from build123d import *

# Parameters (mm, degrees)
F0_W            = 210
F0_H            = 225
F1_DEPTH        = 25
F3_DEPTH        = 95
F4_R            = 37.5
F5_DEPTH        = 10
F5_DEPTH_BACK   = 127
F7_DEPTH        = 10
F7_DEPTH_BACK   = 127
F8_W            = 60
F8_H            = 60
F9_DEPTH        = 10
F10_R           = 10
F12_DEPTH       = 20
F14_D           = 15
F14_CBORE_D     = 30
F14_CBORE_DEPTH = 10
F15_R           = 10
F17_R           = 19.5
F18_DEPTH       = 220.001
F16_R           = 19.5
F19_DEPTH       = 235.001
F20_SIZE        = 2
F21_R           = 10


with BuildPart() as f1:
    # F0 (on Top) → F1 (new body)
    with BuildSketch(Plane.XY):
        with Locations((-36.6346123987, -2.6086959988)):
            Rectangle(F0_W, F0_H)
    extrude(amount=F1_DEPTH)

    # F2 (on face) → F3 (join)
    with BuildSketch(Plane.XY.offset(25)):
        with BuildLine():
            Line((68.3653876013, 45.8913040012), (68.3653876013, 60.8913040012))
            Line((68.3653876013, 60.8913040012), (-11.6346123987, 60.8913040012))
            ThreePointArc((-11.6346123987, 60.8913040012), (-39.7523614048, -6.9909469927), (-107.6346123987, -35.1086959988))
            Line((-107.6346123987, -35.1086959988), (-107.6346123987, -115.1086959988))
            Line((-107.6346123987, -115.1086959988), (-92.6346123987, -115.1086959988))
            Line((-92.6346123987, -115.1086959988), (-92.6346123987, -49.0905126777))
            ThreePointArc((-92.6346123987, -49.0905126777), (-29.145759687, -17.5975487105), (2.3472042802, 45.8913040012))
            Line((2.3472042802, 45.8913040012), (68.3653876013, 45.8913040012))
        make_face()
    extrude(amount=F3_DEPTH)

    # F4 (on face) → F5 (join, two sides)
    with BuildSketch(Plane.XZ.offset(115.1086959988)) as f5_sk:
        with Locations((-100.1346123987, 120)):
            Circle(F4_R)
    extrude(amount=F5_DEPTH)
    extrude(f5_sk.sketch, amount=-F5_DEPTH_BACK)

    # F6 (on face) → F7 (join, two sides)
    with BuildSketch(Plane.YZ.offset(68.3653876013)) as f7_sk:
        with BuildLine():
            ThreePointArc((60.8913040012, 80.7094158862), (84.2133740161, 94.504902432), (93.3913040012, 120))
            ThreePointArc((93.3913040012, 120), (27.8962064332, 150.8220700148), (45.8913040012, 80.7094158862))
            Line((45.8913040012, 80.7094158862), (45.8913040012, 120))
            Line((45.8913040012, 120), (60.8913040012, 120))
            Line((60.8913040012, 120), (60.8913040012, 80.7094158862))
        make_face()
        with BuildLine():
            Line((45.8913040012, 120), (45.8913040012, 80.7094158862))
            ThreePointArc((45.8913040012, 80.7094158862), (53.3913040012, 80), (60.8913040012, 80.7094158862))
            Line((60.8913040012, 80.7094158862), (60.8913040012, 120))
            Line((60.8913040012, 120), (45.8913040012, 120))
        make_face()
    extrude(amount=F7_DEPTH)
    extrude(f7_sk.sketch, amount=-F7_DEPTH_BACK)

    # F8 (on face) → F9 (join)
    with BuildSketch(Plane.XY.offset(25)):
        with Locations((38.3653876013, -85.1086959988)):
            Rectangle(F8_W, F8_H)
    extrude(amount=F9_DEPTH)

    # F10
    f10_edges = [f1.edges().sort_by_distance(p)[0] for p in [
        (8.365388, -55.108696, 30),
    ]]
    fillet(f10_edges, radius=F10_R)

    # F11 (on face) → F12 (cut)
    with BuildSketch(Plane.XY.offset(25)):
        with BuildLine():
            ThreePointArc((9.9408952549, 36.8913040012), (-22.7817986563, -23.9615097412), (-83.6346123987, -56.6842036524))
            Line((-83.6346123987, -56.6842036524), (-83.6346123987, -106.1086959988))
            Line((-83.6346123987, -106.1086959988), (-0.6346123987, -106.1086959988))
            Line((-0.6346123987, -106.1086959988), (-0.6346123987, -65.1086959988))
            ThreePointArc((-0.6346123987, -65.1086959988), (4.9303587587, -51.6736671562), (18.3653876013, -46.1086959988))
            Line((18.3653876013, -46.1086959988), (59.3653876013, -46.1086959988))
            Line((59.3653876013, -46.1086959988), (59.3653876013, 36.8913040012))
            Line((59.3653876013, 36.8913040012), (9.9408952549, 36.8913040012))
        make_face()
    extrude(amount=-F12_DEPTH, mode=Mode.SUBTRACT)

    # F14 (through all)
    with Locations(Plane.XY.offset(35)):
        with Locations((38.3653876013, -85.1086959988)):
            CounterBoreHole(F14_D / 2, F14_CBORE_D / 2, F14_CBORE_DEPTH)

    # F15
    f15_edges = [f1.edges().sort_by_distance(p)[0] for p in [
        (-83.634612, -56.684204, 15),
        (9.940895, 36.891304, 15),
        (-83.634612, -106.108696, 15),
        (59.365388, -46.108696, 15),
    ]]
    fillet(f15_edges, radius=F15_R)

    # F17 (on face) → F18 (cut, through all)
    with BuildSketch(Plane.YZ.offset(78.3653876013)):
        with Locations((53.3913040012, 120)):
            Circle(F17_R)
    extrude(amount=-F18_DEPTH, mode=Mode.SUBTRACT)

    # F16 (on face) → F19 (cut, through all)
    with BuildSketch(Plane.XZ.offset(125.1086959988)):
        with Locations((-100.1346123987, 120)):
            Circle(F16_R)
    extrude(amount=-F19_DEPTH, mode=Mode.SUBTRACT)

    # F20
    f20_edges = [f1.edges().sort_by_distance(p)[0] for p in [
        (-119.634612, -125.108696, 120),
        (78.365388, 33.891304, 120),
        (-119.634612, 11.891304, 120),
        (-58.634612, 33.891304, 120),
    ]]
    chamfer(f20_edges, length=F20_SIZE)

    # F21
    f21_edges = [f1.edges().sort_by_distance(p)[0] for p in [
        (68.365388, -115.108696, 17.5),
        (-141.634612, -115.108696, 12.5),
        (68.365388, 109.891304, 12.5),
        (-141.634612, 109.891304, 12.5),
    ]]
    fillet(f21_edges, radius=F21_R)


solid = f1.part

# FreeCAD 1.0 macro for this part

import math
import FreeCAD as App
import Part
import Sketcher

V = App.Vector


def edges_at(feature, points):
    """Names of the edges that pass closest to the given points."""
    edges = feature.Shape.Edges
    near = lambda p: min(range(len(edges)), key=lambda i: edges[i].distToShape(Part.Vertex(*p))[0])
    return sorted({f"Edge{near(p) + 1}" for p in points})


def add_polygon(sketch, points):
    """Adds a closed chain of lines whose ends are joined by coincident constraints."""
    first, n = sketch.GeometryCount, len(points)
    for a, b in zip(points, points[1:] + points[:1]):
        sketch.addGeometry(Part.LineSegment(App.Vector(*a, 0), App.Vector(*b, 0)), False)
    for i in range(n):
        sketch.addConstraint(Sketcher.Constraint("Coincident", first + i, 2, first + (i + 1) % n, 1))

doc = App.newDocument("Part")
body = doc.addObject("PartDesign::Body", "Body")

sketch1 = doc.addObject("Sketcher::SketchObject", "Sketch")
body.addObject(sketch1)
sketch1.AttachmentSupport = (doc.XY_Plane, [""])
sketch1.MapMode = "FlatFace"
add_polygon(sketch1, [(-141.634612, 109.891304), (-141.634612, -115.108696), (68.365388, -115.108696), (68.365388, 109.891304)])
sketch1.addConstraint([
    Sketcher.Constraint("Vertical", 0),
    Sketcher.Constraint("Horizontal", 1),
    Sketcher.Constraint("Vertical", 2),
    Sketcher.Constraint("Horizontal", 3),
    Sketcher.Constraint("DistanceX", 1, 1, 1, 2, 210.0),
    Sketcher.Constraint("DistanceY", 0, 2, 0, 1, 225.0),
    Sketcher.Constraint("DistanceX", 0, 2, -1, 1, 141.634612),
    Sketcher.Constraint("DistanceY", 0, 2, -1, 1, 115.108696),
])
pad1 = doc.addObject("PartDesign::Pad", "Pad")
body.addObject(pad1)
pad1.Profile = sketch1
pad1.Length = 25

sketch2 = doc.addObject("Sketcher::SketchObject", "Sketch001")
body.addObject(sketch2)
sketch2.AttachmentSupport = (doc.XY_Plane, [""])
sketch2.MapMode = "FlatFace"
sketch2.AttachmentOffset = App.Placement(V(0, 0, 25), App.Rotation())
sketch2.addGeometry([
    Part.LineSegment(V(68.365388, 45.891304, 0), V(68.365388, 60.891304, 0)),
    Part.LineSegment(V(68.365388, 60.891304, 0), V(-11.634612, 60.891304, 0)),
    Part.ArcOfCircle(Part.Circle(V(-107.634612, 60.891304, 0), V(0, 0, 1), 96), math.radians(-90), math.radians(0)),
    Part.LineSegment(V(-107.634612, -35.108696, 0), V(-107.634612, -115.108696, 0)),
    Part.LineSegment(V(-107.634612, -115.108696, 0), V(-92.634612, -115.108696, 0)),
    Part.LineSegment(V(-92.634612, -115.108696, 0), V(-92.634612, -49.090513, 0)),
    Part.ArcOfCircle(Part.Circle(V(-107.634612, 60.891304, 0), V(0, 0, 1), 111), math.radians(-82.233566), math.radians(-7.766434)),
    Part.LineSegment(V(2.347204, 45.891304, 0), V(68.365388, 45.891304, 0)),
], False)
sketch2.addConstraint([
    Sketcher.Constraint("Coincident", 0, 2, 1, 1),
    Sketcher.Constraint("Coincident", 1, 2, 2, 2),
    Sketcher.Constraint("Coincident", 2, 1, 3, 1),
    Sketcher.Constraint("Coincident", 3, 2, 4, 1),
    Sketcher.Constraint("Coincident", 4, 2, 5, 1),
    Sketcher.Constraint("Coincident", 5, 2, 6, 1),
    Sketcher.Constraint("Coincident", 6, 2, 7, 1),
    Sketcher.Constraint("Coincident", 7, 2, 0, 1),
    Sketcher.Constraint("Vertical", 0),
    Sketcher.Constraint("Horizontal", 1),
    Sketcher.Constraint("Vertical", 3),
    Sketcher.Constraint("Horizontal", 4),
    Sketcher.Constraint("Vertical", 5),
    Sketcher.Constraint("Horizontal", 7),
    Sketcher.Constraint("Coincident", 6, 3, 2, 3),
    Sketcher.Constraint("Horizontal", 6, 3, 0, 2),
    Sketcher.Constraint("Vertical", 6, 3, 2, 1),
    Sketcher.Constraint("Equal", 4, 0),
    Sketcher.Constraint("Equal", 1, 3),
    Sketcher.Constraint("Radius", 2, 96.0),
    Sketcher.Constraint("Radius", 6, 111.0),
    Sketcher.Constraint("DistanceX", 1, 2, 1, 1, 80.0),
    Sketcher.Constraint("DistanceX", 4, 1, 4, 2, 15.0),
    Sketcher.Constraint("DistanceX", 2, 3, -1, 1, 107.634612),
    Sketcher.Constraint("DistanceY", -1, 1, 2, 3, 60.891304),
])
pad2 = doc.addObject("PartDesign::Pad", "Pad001")
body.addObject(pad2)
pad2.Profile = sketch2
pad2.Length = 95

sketch3 = doc.addObject("Sketcher::SketchObject", "Sketch002")
body.addObject(sketch3)
sketch3.AttachmentSupport = (doc.XZ_Plane, [""])
sketch3.MapMode = "FlatFace"
sketch3.AttachmentOffset = App.Placement(V(0, 0, 115.108696), App.Rotation())
sketch3.addGeometry(Part.Circle(V(-100.134612, 120, 0), V(0, 0, 1), 37.5), False)
sketch3.addConstraint([
    Sketcher.Constraint("Diameter", 0, 75.0),
    Sketcher.Constraint("DistanceY", -1, 1, 0, 3, 120.0),
    Sketcher.Constraint("DistanceX", 0, 3, -1, 1, 100.134612),
])
pad3 = doc.addObject("PartDesign::Pad", "Pad002")
body.addObject(pad3)
pad3.Profile = sketch3
pad3.Type = "TwoLengths"
pad3.Length = 10
pad3.Length2 = 127

sketch4 = doc.addObject("Sketcher::SketchObject", "Sketch003")
body.addObject(sketch4)
sketch4.AttachmentSupport = (doc.YZ_Plane, [""])
sketch4.MapMode = "FlatFace"
sketch4.AttachmentOffset = App.Placement(V(0, 0, 68.365388), App.Rotation())
sketch4.addGeometry([
    Part.ArcOfCircle(Part.Circle(V(53.391304, 120, 0), V(0, 0, 1), 40), math.radians(-79.193077), math.radians(0)),
    Part.ArcOfCircle(Part.Circle(V(53.391304, 120, 0), V(0, 0, 1), 40), math.radians(0), math.radians(259.193077)),
    Part.ArcOfCircle(Part.Circle(V(53.391304, 120, 0), V(0, 0, 1), 40), math.radians(-100.806923), math.radians(-79.193077)),
], False)
sketch4.addConstraint([
    Sketcher.Constraint("Tangent", 0, 2, 1, 1),
    Sketcher.Constraint("Tangent", 1, 2, 2, 1),
    Sketcher.Constraint("Tangent", 2, 2, 0, 1),
    Sketcher.Constraint("Horizontal", 2, 3, 0, 2),
    Sketcher.Constraint("Horizontal", 1, 2, 2, 2),
    Sketcher.Constraint("Radius", 0, 40.0),
    Sketcher.Constraint("DistanceY", -1, 1, 0, 3, 120.0),
    Sketcher.Constraint("DistanceX", 1, 2, 2, 2, 15.0),
    Sketcher.Constraint("DistanceX", -1, 1, 0, 3, 53.391304),
])
pad4 = doc.addObject("PartDesign::Pad", "Pad003")
body.addObject(pad4)
pad4.Profile = sketch4
pad4.Type = "TwoLengths"
pad4.Length = 10
pad4.Length2 = 127

sketch5 = doc.addObject("Sketcher::SketchObject", "Sketch004")
body.addObject(sketch5)
sketch5.AttachmentSupport = (doc.XY_Plane, [""])
sketch5.MapMode = "FlatFace"
sketch5.AttachmentOffset = App.Placement(V(0, 0, 25), App.Rotation())
add_polygon(sketch5, [(8.365388, -55.108696), (8.365388, -115.108696), (68.365388, -115.108696), (68.365388, -55.108696)])
sketch5.addConstraint([
    Sketcher.Constraint("Vertical", 0),
    Sketcher.Constraint("Horizontal", 1),
    Sketcher.Constraint("Vertical", 2),
    Sketcher.Constraint("Horizontal", 3),
    Sketcher.Constraint("Equal", 3, 0),
    Sketcher.Constraint("DistanceX", 1, 1, 1, 2, 60.0),
    Sketcher.Constraint("DistanceX", -1, 1, 0, 2, 8.365388),
    Sketcher.Constraint("DistanceY", 0, 2, -1, 1, 115.108696),
])
pad5 = doc.addObject("PartDesign::Pad", "Pad004")
body.addObject(pad5)
pad5.Profile = sketch5
pad5.Length = 10
doc.recompute()

fillet = doc.addObject("PartDesign::Fillet", "Fillet")
body.addObject(fillet)
fillet.Base = (pad5, edges_at(pad5, [(8.365, -55.109, 30)]))
fillet.Radius = 10

sketch6 = doc.addObject("Sketcher::SketchObject", "Sketch005")
body.addObject(sketch6)
sketch6.AttachmentSupport = (doc.XY_Plane, [""])
sketch6.MapMode = "FlatFace"
sketch6.AttachmentOffset = App.Placement(V(0, 0, 25), App.Rotation())
sketch6.addGeometry([
    Part.ArcOfCircle(Part.Circle(V(-107.634612, 60.891304, 0), V(0, 0, 1), 120), math.radians(-78.463041), math.radians(-11.536959)),
    Part.LineSegment(V(-83.634612, -56.684204, 0), V(-83.634612, -106.108696, 0)),
    Part.LineSegment(V(-83.634612, -106.108696, 0), V(-0.634612, -106.108696, 0)),
    Part.LineSegment(V(-0.634612, -106.108696, 0), V(-0.634612, -65.108696, 0)),
    Part.ArcOfCircle(Part.Circle(V(18.365388, -65.108696, 0), V(0, 0, 1), 19), math.radians(90), math.radians(180)),
    Part.LineSegment(V(18.365388, -46.108696, 0), V(59.365388, -46.108696, 0)),
    Part.LineSegment(V(59.365388, -46.108696, 0), V(59.365388, 36.891304, 0)),
    Part.LineSegment(V(59.365388, 36.891304, 0), V(9.940895, 36.891304, 0)),
], False)
sketch6.addConstraint([
    Sketcher.Constraint("Coincident", 0, 1, 1, 1),
    Sketcher.Constraint("Coincident", 1, 2, 2, 1),
    Sketcher.Constraint("Coincident", 2, 2, 3, 1),
    Sketcher.Constraint("Tangent", 3, 2, 4, 2),
    Sketcher.Constraint("Tangent", 4, 1, 5, 1),
    Sketcher.Constraint("Coincident", 5, 2, 6, 1),
    Sketcher.Constraint("Coincident", 6, 2, 7, 1),
    Sketcher.Constraint("Coincident", 7, 2, 0, 2),
    Sketcher.Constraint("Vertical", 1),
    Sketcher.Constraint("Horizontal", 2),
    Sketcher.Constraint("Vertical", 3),
    Sketcher.Constraint("Horizontal", 5),
    Sketcher.Constraint("Vertical", 6),
    Sketcher.Constraint("Horizontal", 7),
    Sketcher.Constraint("Equal", 7, 1),
    Sketcher.Constraint("Equal", 5, 3),
    Sketcher.Constraint("Equal", 2, 6),
    Sketcher.Constraint("Radius", 0, 120.0),
    Sketcher.Constraint("Radius", 4, 19.0),
    Sketcher.Constraint("DistanceX", 2, 1, 2, 2, 83.0),
    Sketcher.Constraint("DistanceX", 5, 1, 5, 2, 41.0),
    Sketcher.Constraint("DistanceX", 0, 3, 4, 3, 126.0),
    Sketcher.Constraint("DistanceX", 0, 3, -1, 1, 107.634612),
    Sketcher.Constraint("DistanceY", -1, 1, 0, 3, 60.891304),
])
pocket1 = doc.addObject("PartDesign::Pocket", "Pocket")
body.addObject(pocket1)
pocket1.Profile = sketch6
pocket1.Length = 20

sketch7 = doc.addObject("Sketcher::SketchObject", "Sketch006")
body.addObject(sketch7)
sketch7.AttachmentSupport = (doc.XY_Plane, [""])
sketch7.MapMode = "FlatFace"
sketch7.AttachmentOffset = App.Placement(V(0, 0, 35), App.Rotation())
sketch7.addGeometry(Part.Circle(V(38.365388, -85.108696, 0), V(0, 0, 1), 7.5), False)
sketch7.addConstraint([
    Sketcher.Constraint("Diameter", 0, 15.0),
    Sketcher.Constraint("DistanceX", -1, 1, 0, 3, 38.365388),
    Sketcher.Constraint("DistanceY", 0, 3, -1, 1, 85.108696),
])
doc.recompute()
hole = doc.addObject("PartDesign::Hole", "Hole")
body.addObject(hole)
hole.Profile = sketch7
hole.ThreadType = "None"
hole.Diameter = 15
hole.DepthType = "ThroughAll"
hole.HoleCutType = "Counterbore"
hole.HoleCutDiameter = 30
hole.HoleCutDepth = 10
doc.recompute()

fillet2 = doc.addObject("PartDesign::Fillet", "Fillet001")
body.addObject(fillet2)
fillet2.Base = (hole, edges_at(hole, [
    (-83.635, -56.684, 15),
    (9.941, 36.891, 15),
    (-83.635, -106.109, 15),
    (59.365, -46.109, 15),
]))
fillet2.Radius = 10

sketch8 = doc.addObject("Sketcher::SketchObject", "Sketch007")
body.addObject(sketch8)
sketch8.AttachmentSupport = (doc.YZ_Plane, [""])
sketch8.MapMode = "FlatFace"
sketch8.AttachmentOffset = App.Placement(V(0, 0, 78.365388), App.Rotation())
sketch8.addGeometry(Part.Circle(V(53.391304, 120, 0), V(0, 0, 1), 19.5), False)
sketch8.addConstraint([
    Sketcher.Constraint("Diameter", 0, 39.0),
    Sketcher.Constraint("DistanceY", -1, 1, 0, 3, 120.0),
    Sketcher.Constraint("DistanceX", -1, 1, 0, 3, 53.391304),
])
pocket2 = doc.addObject("PartDesign::Pocket", "Pocket001")
body.addObject(pocket2)
pocket2.Profile = sketch8
pocket2.Type = "ThroughAll"

sketch9 = doc.addObject("Sketcher::SketchObject", "Sketch008")
body.addObject(sketch9)
sketch9.AttachmentSupport = (doc.XZ_Plane, [""])
sketch9.MapMode = "FlatFace"
sketch9.AttachmentOffset = App.Placement(V(0, 0, 125.108696), App.Rotation())
sketch9.addGeometry(Part.Circle(V(-100.134612, 120, 0), V(0, 0, 1), 19.5), False)
sketch9.addConstraint([
    Sketcher.Constraint("Diameter", 0, 39.0),
    Sketcher.Constraint("DistanceY", -1, 1, 0, 3, 120.0),
    Sketcher.Constraint("DistanceX", 0, 3, -1, 1, 100.134612),
])
pocket3 = doc.addObject("PartDesign::Pocket", "Pocket002")
body.addObject(pocket3)
pocket3.Profile = sketch9
pocket3.Type = "ThroughAll"
doc.recompute()

chamfer = doc.addObject("PartDesign::Chamfer", "Chamfer")
body.addObject(chamfer)
chamfer.Base = (pocket3, edges_at(pocket3, [
    (-119.635, -125.109, 120),
    (78.365, 33.891, 120),
    (-119.635, 11.891, 120),
    (-58.635, 33.891, 120),
]))
chamfer.Size = 2
doc.recompute()

fillet3 = doc.addObject("PartDesign::Fillet", "Fillet002")
body.addObject(fillet3)
fillet3.Base = (chamfer, edges_at(chamfer, [
    (68.365, -115.109, 17.5),
    (-141.635, -115.109, 12.5),
    (68.365, 109.891, 12.5),
    (-141.635, 109.891, 12.5),
]))
fillet3.Radius = 10

doc.recompute()
